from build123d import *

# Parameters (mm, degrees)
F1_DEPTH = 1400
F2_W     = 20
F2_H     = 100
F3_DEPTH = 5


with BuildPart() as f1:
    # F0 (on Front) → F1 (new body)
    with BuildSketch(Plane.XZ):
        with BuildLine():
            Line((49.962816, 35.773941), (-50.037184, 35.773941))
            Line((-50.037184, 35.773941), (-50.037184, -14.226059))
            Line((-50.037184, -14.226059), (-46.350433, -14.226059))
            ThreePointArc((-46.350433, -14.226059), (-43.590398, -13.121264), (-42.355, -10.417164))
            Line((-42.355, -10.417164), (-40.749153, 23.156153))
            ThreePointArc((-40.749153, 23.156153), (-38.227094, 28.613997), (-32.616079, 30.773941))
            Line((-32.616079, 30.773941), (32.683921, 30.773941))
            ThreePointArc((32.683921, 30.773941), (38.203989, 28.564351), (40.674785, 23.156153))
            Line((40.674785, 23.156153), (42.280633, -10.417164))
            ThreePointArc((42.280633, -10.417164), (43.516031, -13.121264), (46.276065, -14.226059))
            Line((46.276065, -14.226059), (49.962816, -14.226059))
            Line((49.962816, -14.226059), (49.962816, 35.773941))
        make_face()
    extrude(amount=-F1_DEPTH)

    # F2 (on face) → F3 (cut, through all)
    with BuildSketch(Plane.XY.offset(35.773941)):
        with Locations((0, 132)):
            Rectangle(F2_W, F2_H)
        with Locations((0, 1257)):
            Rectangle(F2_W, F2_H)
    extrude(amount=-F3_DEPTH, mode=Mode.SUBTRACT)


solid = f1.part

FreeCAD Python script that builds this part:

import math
import FreeCAD as App
import Part
import Sketcher
Q = App.Units.Quantity


def add_polygon(sketch, points):
    """Adds a closed chain of lines whose ends are joined by coincident constraints."""
    first, n = sketch.GeometryCount, len(points)
    for a, b in zip(points, points[1:] + points[:1]):
        sketch.addGeometry(Part.LineSegment(App.Vector(*a, 0), App.Vector(*b, 0)), False)
    for i in range(n):
        sketch.addConstraint(Sketcher.Constraint("Coincident", first + i, 2, first + (i + 1) % n, 1))

doc = App.newDocument("Part")
params = doc.addObject("Spreadsheet::Sheet", "Params")
for row, (alias, value) in enumerate([
    ("sketch1_radius", "4 mm"),
    ("sketch1_radius2", "8.000001 mm"),
    ("sketch1_width", "100 mm"),
    ("sketch1_height", "50 mm"),
    ("sketch1_width2", "65.3 mm"),
    ("pad1_length", "1400 mm"),
    ("sketch2_width", "20 mm"),
    ("sketch2_height", "100 mm"),
], start=1):
    params.set(f"A{row}", alias)
    params.set(f"B{row}", "=" + value)
    params.setAlias(f"B{row}", alias)

body = doc.addObject("PartDesign::Body", "Body")

# Sketch on XZ plane
sketch1 = body.newObject("Sketcher::SketchObject", "Sketch")
sketch1.AttachmentSupport = (doc.getObject("XZ_Plane"), [""])
sketch1.MapMode = "FlatFace"
sketch1.addGeometry([
    Part.LineSegment(App.Vector(50, 35.8, 0), App.Vector(-50, 35.8, 0)),  # 0
    Part.LineSegment(App.Vector(-50, 35.8, 0), App.Vector(-50, -14.2, 0)),  # 1
    Part.LineSegment(App.Vector(-50, -14.2, 0), App.Vector(-46.4, -14.2, 0)),  # 2
    Part.ArcOfCircle(Part.Circle(App.Vector(-46.4, -10.2, 0), App.Vector(0, 0, 1), 4), math.radians(-90), math.radians(-3)),  # 3
    Part.LineSegment(App.Vector(-42.4, -10.4, 0), App.Vector(-40.7, 23.2, 0)),  # 4
    Part.ArcOfCircle(Part.Circle(App.Vector(-32.8, 22.8, 0), App.Vector(0, 0, 1), 8), math.radians(89), math.radians(177)),  # 5
    Part.LineSegment(App.Vector(-32.6, 30.8, 0), App.Vector(32.7, 30.8, 0)),  # 6
    Part.ArcOfCircle(Part.Circle(App.Vector(32.7, 22.8, 0), App.Vector(0, 0, 1), 8), math.radians(3), math.radians(90)),  # 7
    Part.LineSegment(App.Vector(40.7, 23.2, 0), App.Vector(42.3, -10.4, 0)),  # 8
    Part.ArcOfCircle(Part.Circle(App.Vector(46.3, -10.2, 0), App.Vector(0, 0, 1), 4), math.radians(-177), math.radians(-90)),  # 9
    Part.LineSegment(App.Vector(46.3, -14.2, 0), App.Vector(50, -14.2, 0)),  # 10
    Part.LineSegment(App.Vector(50, -14.2, 0), App.Vector(50, 35.8, 0)),  # 11
], False)
sketch1.addConstraint([
    Sketcher.Constraint("Coincident", 0, 2, 1, 1),
    Sketcher.Constraint("Coincident", 1, 2, 2, 1),
    Sketcher.Constraint("Tangent", 2, 2, 3, 1),
    Sketcher.Constraint("Tangent", 3, 2, 4, 1),
    Sketcher.Constraint("Coincident", 4, 2, 5, 2),
    Sketcher.Constraint("Coincident", 5, 1, 6, 1),
    Sketcher.Constraint("Tangent", 6, 2, 7, 2),
    Sketcher.Constraint("Tangent", 7, 1, 8, 1),
    Sketcher.Constraint("Tangent", 8, 2, 9, 1),
    Sketcher.Constraint("Tangent", 9, 2, 10, 1),
    Sketcher.Constraint("Coincident", 10, 2, 11, 1),
    Sketcher.Constraint("Coincident", 11, 2, 0, 1),
    Sketcher.Constraint("Horizontal", 0),
    Sketcher.Constraint("Vertical", 1),
    Sketcher.Constraint("Horizontal", 2),
    Sketcher.Constraint("Horizontal", 6),
    Sketcher.Constraint("Horizontal", 10),
    Sketcher.Constraint("Vertical", 11),
    Sketcher.Constraint("Equal", 5, 7),
    Sketcher.Constraint("Equal", 3, 9),
    Sketcher.Constraint("Horizontal", 3, 3, 9, 3),
    Sketcher.Constraint("Horizontal", 4, 2, 7, 1),
    Sketcher.Constraint("Horizontal", 3, 2, 8, 2),
    Sketcher.Constraint("Equal", 2, 10),
    Sketcher.Constraint("Radius", 3, Q("4 mm")),
    Sketcher.Constraint("Radius", 5, Q("8.000001 mm")),
    Sketcher.Constraint("DistanceX", 0, 2, 0, 1, Q("100 mm")),
    Sketcher.Constraint("DistanceY", 1, 2, 1, 1, Q("50 mm")),
    Sketcher.Constraint("DistanceX", 6, 1, 6, 2, Q("65.3 mm")),
    Sketcher.Constraint("DistanceY", 3, 3, 7, 3, Q("33.000001 mm")),
    Sketcher.Constraint("DistanceX", 3, 2, -1, 1, Q("42.355 mm")),
    Sketcher.Constraint("Distance", 4, Q("33.6117 mm")),
    Sketcher.Constraint("DistanceX", 2, 1, 2, 2, Q("3.686751 mm")),
    Sketcher.Constraint("DistanceY", 3, 3, -1, 1, Q("10.226059 mm")),
])
sketch1.setExpression("Constraints[24]", "Params.sketch1_radius")
sketch1.setExpression("Constraints[25]", "Params.sketch1_radius2")
sketch1.setExpression("Constraints[26]", "Params.sketch1_width")
sketch1.setExpression("Constraints[27]", "Params.sketch1_height")
sketch1.setExpression("Constraints[28]", "Params.sketch1_width2")
pad1 = body.newObject("PartDesign::Pad", "Pad")
pad1.Profile = sketch1
pad1.setExpression("Length", "Params.pad1_length")
pad1.Reversed = True

# Sketch on XY plane
sketch2 = body.newObject("Sketcher::SketchObject", "Sketch001")
sketch2.AttachmentSupport = (doc.getObject("XY_Plane"), [""])
sketch2.MapMode = "FlatFace"
sketch2.AttachmentOffset = App.Placement(App.Vector(0, 0, 35.773941), App.Rotation())
add_polygon(sketch2, [(-10, 182), (-10, 82), (10, 82), (10, 182)])  # lines 0-3
add_polygon(sketch2, [(-10, 1307), (-10, 1207), (10, 1207), (10, 1307)])  # lines 4-7
sketch2.addConstraint([
    Sketcher.Constraint("Vertical", 0),
    Sketcher.Constraint("Horizontal", 1),
    Sketcher.Constraint("Vertical", 2),
    Sketcher.Constraint("Horizontal", 3),
    Sketcher.Constraint("Vertical", 4),
    Sketcher.Constraint("Horizontal", 5),
    Sketcher.Constraint("Vertical", 6),
    Sketcher.Constraint("Horizontal", 7),
    Sketcher.Constraint("Vertical", 3, 2, 4, 2),
    Sketcher.Constraint("Vertical", 2, 2, 5, 2),
    Sketcher.Constraint("Equal", 2, 4),
    Sketcher.Constraint("DistanceX", 1, 1, 1, 2, Q("20 mm")),
    Sketcher.Constraint("DistanceY", 0, 2, 0, 1, Q("100 mm")),
    Sketcher.Constraint("DistanceX", 0, 2, -1, 1, Q("10 mm")),
    Sketcher.Constraint("DistanceY", -1, 1, 0, 2, Q("82 mm")),
    Sketcher.Constraint("DistanceY", -1, 1, 4, 2, Q("1207 mm")),
])
sketch2.setExpression("Constraints[19]", "Params.sketch2_width")
sketch2.setExpression("Constraints[20]", "Params.sketch2_height")
pocket1 = body.newObject("PartDesign::Pocket", "Pocket")
pocket1.Profile = sketch2
pocket1.Type = "ThroughAll"

doc.recompute()
